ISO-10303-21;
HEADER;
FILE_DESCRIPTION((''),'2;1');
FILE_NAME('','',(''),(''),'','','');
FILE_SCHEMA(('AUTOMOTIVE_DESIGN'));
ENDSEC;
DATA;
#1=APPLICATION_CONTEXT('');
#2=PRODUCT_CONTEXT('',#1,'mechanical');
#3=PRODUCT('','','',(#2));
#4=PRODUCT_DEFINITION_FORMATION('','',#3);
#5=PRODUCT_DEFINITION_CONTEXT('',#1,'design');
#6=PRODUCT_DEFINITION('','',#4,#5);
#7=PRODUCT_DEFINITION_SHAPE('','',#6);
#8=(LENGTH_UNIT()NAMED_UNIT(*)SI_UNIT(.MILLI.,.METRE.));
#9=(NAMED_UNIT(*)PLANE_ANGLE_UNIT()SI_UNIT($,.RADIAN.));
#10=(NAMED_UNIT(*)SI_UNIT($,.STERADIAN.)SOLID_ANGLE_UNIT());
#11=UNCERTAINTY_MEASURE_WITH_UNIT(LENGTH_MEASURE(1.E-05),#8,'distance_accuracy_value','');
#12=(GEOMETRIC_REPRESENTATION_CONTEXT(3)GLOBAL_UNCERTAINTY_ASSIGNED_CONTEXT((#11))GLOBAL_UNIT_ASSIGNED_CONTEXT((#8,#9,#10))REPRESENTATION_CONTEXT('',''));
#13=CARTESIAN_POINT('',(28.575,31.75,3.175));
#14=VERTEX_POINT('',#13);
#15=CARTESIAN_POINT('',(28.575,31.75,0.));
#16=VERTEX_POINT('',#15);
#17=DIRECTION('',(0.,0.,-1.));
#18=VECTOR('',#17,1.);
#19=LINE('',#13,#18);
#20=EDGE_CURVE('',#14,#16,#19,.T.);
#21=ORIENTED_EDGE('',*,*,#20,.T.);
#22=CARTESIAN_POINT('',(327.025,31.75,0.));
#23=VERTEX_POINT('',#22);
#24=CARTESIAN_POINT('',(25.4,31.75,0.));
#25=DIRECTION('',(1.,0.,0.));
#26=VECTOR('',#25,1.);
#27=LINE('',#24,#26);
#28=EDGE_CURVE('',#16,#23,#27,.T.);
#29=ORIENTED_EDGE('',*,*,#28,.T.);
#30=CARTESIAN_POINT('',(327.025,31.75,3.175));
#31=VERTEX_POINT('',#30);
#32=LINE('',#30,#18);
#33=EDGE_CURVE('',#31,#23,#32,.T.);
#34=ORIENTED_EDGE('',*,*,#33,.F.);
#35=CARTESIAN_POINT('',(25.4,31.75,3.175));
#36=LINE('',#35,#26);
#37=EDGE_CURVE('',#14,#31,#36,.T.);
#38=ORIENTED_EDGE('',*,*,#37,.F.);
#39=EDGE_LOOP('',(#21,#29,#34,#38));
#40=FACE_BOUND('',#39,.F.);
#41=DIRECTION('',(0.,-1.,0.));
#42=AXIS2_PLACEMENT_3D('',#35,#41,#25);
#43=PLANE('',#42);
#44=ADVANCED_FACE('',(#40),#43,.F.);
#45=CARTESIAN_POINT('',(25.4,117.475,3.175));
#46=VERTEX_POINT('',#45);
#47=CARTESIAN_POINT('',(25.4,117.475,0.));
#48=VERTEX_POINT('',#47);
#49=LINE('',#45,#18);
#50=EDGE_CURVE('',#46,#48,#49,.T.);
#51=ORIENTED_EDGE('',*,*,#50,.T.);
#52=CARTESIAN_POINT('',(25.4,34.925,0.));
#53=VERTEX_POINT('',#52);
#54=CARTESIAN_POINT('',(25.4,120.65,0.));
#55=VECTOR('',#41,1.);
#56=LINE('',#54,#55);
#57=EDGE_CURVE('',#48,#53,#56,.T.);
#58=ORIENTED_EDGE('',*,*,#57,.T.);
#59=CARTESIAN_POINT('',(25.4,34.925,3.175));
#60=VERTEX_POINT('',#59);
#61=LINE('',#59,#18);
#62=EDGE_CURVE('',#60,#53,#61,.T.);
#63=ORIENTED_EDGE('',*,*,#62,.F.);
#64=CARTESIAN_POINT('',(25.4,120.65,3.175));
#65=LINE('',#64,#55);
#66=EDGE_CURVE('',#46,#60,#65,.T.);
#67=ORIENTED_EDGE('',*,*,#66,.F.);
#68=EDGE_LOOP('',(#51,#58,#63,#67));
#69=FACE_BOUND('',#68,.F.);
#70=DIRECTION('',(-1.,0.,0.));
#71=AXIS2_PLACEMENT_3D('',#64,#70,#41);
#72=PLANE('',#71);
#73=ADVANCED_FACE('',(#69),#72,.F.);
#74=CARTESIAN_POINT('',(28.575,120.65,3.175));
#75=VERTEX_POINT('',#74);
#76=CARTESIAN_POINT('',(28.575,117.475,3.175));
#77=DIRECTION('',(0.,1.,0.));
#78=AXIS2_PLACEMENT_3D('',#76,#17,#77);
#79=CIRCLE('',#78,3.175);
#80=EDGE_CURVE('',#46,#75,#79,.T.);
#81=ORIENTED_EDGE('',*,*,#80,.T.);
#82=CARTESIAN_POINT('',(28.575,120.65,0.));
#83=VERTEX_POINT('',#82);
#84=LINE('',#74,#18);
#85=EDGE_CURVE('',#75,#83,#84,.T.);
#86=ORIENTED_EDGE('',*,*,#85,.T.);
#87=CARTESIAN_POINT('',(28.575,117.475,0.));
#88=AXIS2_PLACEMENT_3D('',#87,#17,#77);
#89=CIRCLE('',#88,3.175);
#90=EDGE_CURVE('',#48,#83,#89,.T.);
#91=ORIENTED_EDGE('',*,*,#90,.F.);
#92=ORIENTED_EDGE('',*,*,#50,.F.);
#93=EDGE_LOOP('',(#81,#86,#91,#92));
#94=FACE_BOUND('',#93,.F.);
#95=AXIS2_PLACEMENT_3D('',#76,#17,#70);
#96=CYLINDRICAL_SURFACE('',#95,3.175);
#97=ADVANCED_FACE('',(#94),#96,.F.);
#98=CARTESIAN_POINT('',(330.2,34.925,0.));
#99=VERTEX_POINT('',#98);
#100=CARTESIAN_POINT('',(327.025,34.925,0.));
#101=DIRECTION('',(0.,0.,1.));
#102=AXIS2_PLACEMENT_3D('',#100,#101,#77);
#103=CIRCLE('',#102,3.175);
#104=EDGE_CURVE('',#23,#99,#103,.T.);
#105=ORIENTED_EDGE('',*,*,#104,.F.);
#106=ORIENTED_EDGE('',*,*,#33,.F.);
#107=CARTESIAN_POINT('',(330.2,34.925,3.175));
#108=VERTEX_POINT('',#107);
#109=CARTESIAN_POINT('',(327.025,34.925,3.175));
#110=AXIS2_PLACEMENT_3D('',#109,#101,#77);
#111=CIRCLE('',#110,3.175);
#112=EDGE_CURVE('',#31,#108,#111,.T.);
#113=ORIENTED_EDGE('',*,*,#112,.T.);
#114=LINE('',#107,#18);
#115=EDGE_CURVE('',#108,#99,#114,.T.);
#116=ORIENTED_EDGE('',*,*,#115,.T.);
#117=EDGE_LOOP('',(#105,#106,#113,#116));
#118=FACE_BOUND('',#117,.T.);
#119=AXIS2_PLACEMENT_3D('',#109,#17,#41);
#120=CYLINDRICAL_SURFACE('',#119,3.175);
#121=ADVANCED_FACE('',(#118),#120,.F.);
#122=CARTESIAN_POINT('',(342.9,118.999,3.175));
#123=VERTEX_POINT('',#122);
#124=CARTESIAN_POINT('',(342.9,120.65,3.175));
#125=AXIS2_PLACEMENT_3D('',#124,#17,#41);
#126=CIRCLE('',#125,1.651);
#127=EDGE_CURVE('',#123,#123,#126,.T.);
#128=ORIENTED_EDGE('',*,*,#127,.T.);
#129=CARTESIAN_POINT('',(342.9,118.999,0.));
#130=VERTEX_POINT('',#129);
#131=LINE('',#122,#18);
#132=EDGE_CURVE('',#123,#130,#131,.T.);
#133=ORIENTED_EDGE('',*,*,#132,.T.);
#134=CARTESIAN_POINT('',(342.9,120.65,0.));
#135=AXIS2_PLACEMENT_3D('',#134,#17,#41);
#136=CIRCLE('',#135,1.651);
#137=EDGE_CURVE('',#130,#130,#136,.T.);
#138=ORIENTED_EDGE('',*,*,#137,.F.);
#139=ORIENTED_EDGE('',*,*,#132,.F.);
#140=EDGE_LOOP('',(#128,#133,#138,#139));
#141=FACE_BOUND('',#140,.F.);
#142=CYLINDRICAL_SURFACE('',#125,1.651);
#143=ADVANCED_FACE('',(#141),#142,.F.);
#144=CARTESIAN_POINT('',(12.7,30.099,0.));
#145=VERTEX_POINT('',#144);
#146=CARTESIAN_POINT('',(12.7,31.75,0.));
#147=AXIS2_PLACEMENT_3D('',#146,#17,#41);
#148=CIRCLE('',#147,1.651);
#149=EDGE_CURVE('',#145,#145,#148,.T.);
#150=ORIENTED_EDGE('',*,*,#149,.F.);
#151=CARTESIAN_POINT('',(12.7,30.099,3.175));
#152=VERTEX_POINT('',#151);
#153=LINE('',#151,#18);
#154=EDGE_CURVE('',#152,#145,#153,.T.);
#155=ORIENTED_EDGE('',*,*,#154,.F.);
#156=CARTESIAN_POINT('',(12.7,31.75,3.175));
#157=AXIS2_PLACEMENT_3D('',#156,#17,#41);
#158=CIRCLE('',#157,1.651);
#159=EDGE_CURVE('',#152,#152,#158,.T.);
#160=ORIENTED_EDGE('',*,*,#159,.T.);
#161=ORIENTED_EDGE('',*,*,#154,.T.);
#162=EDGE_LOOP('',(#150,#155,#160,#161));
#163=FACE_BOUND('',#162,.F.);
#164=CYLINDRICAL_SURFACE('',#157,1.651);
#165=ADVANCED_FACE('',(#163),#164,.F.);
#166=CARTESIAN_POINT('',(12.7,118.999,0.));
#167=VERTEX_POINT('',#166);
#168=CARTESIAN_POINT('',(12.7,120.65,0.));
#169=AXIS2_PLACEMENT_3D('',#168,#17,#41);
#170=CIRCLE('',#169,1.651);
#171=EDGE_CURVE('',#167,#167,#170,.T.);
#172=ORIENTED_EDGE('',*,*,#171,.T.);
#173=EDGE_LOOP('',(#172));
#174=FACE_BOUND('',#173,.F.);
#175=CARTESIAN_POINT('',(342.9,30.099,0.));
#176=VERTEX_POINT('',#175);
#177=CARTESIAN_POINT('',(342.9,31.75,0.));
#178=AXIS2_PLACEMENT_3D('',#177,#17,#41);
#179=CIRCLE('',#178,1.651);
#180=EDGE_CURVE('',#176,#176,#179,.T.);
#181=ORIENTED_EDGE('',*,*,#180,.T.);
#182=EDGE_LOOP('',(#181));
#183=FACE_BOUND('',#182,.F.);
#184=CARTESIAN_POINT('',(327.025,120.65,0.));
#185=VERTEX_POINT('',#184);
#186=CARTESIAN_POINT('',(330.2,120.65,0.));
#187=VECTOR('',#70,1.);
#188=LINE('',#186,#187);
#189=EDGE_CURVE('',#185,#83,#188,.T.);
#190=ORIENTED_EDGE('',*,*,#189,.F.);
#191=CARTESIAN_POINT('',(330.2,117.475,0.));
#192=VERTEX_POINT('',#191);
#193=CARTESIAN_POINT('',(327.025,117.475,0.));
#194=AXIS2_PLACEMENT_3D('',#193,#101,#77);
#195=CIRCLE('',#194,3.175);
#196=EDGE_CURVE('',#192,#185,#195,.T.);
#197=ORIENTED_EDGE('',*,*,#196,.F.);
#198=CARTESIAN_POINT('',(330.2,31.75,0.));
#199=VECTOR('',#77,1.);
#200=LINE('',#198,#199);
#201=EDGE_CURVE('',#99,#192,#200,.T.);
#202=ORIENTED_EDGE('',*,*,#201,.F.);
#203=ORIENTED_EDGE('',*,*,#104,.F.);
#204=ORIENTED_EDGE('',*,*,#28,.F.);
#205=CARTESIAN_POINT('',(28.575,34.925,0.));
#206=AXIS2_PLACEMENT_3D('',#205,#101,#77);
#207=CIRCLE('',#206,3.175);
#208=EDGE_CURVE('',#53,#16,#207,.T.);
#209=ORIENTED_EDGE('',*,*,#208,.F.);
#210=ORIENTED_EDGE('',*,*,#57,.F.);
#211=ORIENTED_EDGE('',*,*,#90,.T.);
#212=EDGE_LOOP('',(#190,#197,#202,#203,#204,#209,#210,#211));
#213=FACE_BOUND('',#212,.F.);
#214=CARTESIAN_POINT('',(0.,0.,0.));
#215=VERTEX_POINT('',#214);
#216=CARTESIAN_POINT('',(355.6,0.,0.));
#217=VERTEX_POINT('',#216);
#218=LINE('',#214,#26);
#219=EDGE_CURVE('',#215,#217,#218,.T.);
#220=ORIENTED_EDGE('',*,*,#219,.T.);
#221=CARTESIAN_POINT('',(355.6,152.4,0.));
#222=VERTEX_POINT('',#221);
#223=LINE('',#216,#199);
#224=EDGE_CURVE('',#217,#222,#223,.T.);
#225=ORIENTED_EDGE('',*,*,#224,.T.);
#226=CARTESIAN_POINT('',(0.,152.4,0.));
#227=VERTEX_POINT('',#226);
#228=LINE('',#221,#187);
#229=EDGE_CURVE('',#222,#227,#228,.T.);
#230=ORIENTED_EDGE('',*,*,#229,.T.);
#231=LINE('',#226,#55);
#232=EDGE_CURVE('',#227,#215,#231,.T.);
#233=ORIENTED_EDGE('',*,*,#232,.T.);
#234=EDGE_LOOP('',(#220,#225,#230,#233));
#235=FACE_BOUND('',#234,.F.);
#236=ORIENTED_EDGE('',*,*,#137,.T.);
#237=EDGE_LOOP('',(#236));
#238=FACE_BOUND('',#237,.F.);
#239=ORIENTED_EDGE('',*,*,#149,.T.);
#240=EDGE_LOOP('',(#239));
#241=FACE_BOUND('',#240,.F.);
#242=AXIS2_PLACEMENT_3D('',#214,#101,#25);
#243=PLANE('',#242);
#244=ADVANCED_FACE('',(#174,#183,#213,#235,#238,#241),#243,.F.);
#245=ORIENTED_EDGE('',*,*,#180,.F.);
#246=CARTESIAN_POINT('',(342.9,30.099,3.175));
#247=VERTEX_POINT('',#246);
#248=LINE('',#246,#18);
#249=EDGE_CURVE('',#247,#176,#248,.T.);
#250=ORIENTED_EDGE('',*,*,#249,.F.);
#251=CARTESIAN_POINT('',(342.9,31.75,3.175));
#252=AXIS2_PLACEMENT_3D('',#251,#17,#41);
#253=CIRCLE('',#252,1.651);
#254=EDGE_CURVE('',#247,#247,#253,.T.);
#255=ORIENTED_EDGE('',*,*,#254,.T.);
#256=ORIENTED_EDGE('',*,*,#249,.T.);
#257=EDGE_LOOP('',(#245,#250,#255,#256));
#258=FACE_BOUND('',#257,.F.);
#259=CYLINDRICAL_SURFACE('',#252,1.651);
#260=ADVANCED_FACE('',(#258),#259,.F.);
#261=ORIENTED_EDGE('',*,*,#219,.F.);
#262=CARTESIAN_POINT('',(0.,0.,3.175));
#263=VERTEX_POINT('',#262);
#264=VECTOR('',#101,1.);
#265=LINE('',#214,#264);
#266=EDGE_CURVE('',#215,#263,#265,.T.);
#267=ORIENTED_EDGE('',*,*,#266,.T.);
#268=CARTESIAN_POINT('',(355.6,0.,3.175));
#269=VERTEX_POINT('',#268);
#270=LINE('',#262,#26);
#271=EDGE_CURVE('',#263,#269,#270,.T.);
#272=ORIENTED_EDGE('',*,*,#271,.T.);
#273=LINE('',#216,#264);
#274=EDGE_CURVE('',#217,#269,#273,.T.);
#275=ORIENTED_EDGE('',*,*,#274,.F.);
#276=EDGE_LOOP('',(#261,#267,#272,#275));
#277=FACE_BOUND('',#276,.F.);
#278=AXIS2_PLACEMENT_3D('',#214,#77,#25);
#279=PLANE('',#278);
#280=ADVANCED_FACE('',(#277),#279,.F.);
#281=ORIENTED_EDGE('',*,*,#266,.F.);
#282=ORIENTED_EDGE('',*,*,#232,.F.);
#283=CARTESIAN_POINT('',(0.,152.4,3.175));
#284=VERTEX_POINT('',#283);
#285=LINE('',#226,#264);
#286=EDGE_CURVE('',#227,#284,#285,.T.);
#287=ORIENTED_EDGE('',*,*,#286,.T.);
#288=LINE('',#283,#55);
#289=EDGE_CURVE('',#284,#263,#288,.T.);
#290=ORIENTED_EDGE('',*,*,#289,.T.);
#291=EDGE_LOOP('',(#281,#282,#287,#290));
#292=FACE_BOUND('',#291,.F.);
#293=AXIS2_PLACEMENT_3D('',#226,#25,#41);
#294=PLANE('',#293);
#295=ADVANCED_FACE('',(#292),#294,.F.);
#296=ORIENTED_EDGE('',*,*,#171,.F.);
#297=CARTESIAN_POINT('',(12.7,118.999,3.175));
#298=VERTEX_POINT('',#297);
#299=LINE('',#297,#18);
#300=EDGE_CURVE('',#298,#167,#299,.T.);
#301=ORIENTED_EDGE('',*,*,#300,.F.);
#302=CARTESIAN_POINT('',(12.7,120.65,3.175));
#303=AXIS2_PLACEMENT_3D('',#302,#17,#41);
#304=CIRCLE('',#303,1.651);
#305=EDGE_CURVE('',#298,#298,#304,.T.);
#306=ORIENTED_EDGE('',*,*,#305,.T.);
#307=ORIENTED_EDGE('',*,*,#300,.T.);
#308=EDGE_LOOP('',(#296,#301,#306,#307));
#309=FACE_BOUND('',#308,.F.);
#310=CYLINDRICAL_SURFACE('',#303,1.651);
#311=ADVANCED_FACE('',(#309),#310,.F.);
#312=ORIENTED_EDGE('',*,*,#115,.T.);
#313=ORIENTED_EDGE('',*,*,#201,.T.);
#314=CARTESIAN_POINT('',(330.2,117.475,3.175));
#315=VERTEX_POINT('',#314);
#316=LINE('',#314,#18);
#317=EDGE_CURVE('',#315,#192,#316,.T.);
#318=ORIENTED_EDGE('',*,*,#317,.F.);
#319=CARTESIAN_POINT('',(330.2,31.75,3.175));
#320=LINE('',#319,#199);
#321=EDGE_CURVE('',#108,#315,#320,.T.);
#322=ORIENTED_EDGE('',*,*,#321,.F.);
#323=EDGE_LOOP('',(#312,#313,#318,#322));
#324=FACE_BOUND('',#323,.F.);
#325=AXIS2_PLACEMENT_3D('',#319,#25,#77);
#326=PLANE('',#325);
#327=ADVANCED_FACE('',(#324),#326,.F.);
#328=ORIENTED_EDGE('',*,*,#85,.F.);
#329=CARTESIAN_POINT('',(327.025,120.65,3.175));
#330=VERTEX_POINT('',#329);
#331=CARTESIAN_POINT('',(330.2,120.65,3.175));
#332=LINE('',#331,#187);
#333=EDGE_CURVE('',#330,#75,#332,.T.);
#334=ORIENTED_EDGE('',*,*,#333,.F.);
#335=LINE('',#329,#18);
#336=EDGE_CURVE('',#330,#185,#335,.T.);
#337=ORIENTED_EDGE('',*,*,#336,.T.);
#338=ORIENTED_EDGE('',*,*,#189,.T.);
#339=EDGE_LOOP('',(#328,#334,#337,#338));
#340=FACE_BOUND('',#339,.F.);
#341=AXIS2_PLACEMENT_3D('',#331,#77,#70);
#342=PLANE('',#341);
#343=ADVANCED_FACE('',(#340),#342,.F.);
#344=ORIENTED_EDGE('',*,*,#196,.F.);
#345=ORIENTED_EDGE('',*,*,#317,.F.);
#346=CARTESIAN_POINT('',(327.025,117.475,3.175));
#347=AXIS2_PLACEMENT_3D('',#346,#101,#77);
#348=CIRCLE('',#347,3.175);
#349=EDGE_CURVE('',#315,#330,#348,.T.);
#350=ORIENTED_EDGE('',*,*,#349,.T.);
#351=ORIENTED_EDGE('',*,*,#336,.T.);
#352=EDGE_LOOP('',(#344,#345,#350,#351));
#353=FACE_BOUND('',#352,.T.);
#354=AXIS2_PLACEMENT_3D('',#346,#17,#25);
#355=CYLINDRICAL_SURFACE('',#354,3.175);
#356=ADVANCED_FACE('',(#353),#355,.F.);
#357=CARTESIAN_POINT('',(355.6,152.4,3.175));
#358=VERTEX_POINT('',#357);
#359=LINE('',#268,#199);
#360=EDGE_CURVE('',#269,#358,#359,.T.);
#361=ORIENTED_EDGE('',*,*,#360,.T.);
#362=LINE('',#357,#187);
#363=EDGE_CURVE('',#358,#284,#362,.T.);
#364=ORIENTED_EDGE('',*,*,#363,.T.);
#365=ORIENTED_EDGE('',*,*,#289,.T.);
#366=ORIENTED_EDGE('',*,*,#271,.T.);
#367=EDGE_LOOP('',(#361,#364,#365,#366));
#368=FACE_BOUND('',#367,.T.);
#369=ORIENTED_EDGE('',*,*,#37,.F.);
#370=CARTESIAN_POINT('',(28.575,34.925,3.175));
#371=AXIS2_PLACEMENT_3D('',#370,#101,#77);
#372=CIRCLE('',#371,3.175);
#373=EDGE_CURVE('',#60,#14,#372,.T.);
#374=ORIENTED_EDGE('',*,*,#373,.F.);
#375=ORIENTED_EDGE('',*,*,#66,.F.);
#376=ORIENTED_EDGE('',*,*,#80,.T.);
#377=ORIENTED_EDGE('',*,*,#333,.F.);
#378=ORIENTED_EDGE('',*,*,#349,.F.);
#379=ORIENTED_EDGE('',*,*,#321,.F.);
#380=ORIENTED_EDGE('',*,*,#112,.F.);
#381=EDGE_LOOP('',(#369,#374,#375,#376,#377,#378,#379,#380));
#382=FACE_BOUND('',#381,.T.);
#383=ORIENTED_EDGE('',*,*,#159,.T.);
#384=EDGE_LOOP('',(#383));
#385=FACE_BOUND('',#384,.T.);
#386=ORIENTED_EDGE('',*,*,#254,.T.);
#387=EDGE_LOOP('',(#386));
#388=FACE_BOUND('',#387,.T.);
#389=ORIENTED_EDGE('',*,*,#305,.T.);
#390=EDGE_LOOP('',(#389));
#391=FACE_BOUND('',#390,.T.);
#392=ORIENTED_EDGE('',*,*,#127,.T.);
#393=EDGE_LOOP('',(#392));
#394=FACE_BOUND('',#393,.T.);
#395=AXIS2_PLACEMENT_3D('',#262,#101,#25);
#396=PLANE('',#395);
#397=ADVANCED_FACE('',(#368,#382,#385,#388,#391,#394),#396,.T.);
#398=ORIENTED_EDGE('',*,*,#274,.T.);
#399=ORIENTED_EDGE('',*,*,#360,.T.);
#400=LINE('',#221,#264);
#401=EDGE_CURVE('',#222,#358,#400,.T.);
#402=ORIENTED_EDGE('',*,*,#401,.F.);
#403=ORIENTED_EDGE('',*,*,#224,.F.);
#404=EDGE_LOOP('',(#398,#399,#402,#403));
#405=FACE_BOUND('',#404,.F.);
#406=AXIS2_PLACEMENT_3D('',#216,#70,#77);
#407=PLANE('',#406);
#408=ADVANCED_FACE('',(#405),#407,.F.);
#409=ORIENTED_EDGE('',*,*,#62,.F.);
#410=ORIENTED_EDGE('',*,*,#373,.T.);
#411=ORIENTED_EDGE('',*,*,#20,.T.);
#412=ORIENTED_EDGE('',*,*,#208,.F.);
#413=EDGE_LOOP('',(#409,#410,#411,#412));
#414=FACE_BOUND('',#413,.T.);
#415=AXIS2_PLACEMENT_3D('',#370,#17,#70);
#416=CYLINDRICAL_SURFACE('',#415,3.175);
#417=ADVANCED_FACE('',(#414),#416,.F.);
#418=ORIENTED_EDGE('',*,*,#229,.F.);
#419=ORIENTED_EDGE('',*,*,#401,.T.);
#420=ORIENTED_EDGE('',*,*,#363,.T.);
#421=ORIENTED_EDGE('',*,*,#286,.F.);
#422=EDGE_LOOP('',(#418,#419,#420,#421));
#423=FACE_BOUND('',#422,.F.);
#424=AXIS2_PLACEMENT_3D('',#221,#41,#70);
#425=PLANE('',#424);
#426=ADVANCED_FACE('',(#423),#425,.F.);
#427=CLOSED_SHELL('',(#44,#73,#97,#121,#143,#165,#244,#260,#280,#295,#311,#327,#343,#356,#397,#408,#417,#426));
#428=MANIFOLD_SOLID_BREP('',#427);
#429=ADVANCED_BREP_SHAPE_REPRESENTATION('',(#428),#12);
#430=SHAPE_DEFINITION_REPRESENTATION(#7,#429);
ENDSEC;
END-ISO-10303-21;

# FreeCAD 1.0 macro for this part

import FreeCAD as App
import Part
import Sketcher
from FreeCAD import Vector
Q = App.Units.Quantity


def edges_at(feature, points):
    """Names of the edges that pass closest to the given points."""
    edges = feature.Shape.Edges
    near = lambda p: min(range(len(edges)), key=lambda i: edges[i].distToShape(Part.Vertex(*p))[0])
    return sorted({f"Edge{near(p) + 1}" for p in points})

doc = App.newDocument("Part")
body = doc.addObject("PartDesign::Body", "Body")

# Sketch on XY plane
sketch1 = body.newObject("Sketcher::SketchObject", "Sketch")
sketch1.AttachmentSupport = (doc.getObject("XY_Plane"), [""])
sketch1.MapMode = "FlatFace"
sketch1.addGeometry(Part.LineSegment(Vector(0, 152, 0), Vector(0, 0, 0)), False)
sketch1.addGeometry(Part.LineSegment(Vector(0, 0, 0), Vector(356, 0, 0)), False)
sketch1.addGeometry(Part.LineSegment(Vector(356, 0, 0), Vector(356, 152, 0)), False)
sketch1.addGeometry(Part.LineSegment(Vector(356, 152, 0), Vector(0, 152, 0)), False)
sketch1.addConstraint(Sketcher.Constraint("Coincident", 0, 2, 1, 1))
sketch1.addConstraint(Sketcher.Constraint("Coincident", 1, 2, 2, 1))
sketch1.addConstraint(Sketcher.Constraint("Coincident", 2, 2, 3, 1))
sketch1.addConstraint(Sketcher.Constraint("Coincident", 3, 2, 0, 1))
sketch1.addConstraint(Sketcher.Constraint("Vertical", 0))
sketch1.addConstraint(Sketcher.Constraint("Horizontal", 1))
sketch1.addConstraint(Sketcher.Constraint("Vertical", 2))
sketch1.addConstraint(Sketcher.Constraint("Horizontal", 3))
sketch1.addConstraint(Sketcher.Constraint("Coincident", 0, 2, -1, 1))
sketch1.addConstraint(Sketcher.Constraint("DistanceX", 1, 1, 1, 2, Q("14 in")))
sketch1.addConstraint(Sketcher.Constraint("DistanceY", 0, 2, 0, 1, Q("6 in")))
pad1 = body.newObject("PartDesign::Pad", "Pad")
pad1.Profile = sketch1
pad1.Length = Q("0.125 in")

# Sketch on XY plane
sketch2 = body.newObject("Sketcher::SketchObject", "Sketch001")
sketch2.AttachmentSupport = (doc.getObject("XY_Plane"), [""])
sketch2.MapMode = "FlatFace"
sketch2.AttachmentOffset = App.Placement(Vector(0, 0, 0.125 * 25.4), App.Rotation())
sketch2.addGeometry(Part.Circle(Vector(12.7, 31.8, 0), Vector(0, 0, 1), 1.7), False)
sketch2.addGeometry(Part.Circle(Vector(12.7, 120.7, 0), Vector(0, 0, 1), 1.7), False)
sketch2.addGeometry(Part.Circle(Vector(342.9, 120.7, 0), Vector(0, 0, 1), 1.7), False)
sketch2.addGeometry(Part.Circle(Vector(342.9, 31.8, 0), Vector(0, 0, 1), 1.7), False)
sketch2.addConstraint(Sketcher.Constraint("Equal", 0, 1))
sketch2.addConstraint(Sketcher.Constraint("Equal", 1, 2))
sketch2.addConstraint(Sketcher.Constraint("Equal", 2, 3))
sketch2.addConstraint(Sketcher.Constraint("Horizontal", 1, 3, 2, 3))
sketch2.addConstraint(Sketcher.Constraint("Horizontal", 0, 3, 3, 3))
sketch2.addConstraint(Sketcher.Constraint("Vertical", 0, 3, 1, 3))
sketch2.addConstraint(Sketcher.Constraint("Vertical", 2, 3, 3, 3))
sketch2.addConstraint(Sketcher.Constraint("Diameter", 0, Q("0.13 in")))
sketch2.addConstraint(Sketcher.Constraint("DistanceX", 1, 3, 2, 3, Q("13 in")))
sketch2.addConstraint(Sketcher.Constraint("DistanceX", -1, 1, 0, 3, Q("0.5 in")))
sketch2.addConstraint(Sketcher.Constraint("DistanceY", 0, 3, 1, 3, Q("3.5 in")))
sketch2.addConstraint(Sketcher.Constraint("DistanceY", -1, 1, 0, 3, Q("1.25 in")))
doc.recompute()
hole = body.newObject("PartDesign::Hole", "Hole")
hole.Profile = sketch2
hole.ThreadType = "None"
hole.Diameter = Q("0.13 in")
hole.DepthType = "ThroughAll"

# Sketch on XY plane
sketch3 = body.newObject("Sketcher::SketchObject", "Sketch002")
sketch3.AttachmentSupport = (doc.getObject("XY_Plane"), [""])
sketch3.MapMode = "FlatFace"
sketch3.AttachmentOffset = App.Placement(Vector(0, 0, 0.125 * 25.4), App.Rotation())
sketch3.addGeometry(Part.LineSegment(Vector(25, 121, 0), Vector(25, 32, 0)), False)
sketch3.addGeometry(Part.LineSegment(Vector(25, 32, 0), Vector(330, 32, 0)), False)
sketch3.addGeometry(Part.LineSegment(Vector(330, 32, 0), Vector(330, 121, 0)), False)
sketch3.addGeometry(Part.LineSegment(Vector(330, 121, 0), Vector(25, 121, 0)), False)
sketch3.addConstraint(Sketcher.Constraint("Coincident", 0, 2, 1, 1))
sketch3.addConstraint(Sketcher.Constraint("Coincident", 1, 2, 2, 1))
sketch3.addConstraint(Sketcher.Constraint("Coincident", 2, 2, 3, 1))
sketch3.addConstraint(Sketcher.Constraint("Coincident", 3, 2, 0, 1))
sketch3.addConstraint(Sketcher.Constraint("Vertical", 0))
sketch3.addConstraint(Sketcher.Constraint("Horizontal", 1))
sketch3.addConstraint(Sketcher.Constraint("Vertical", 2))
sketch3.addConstraint(Sketcher.Constraint("Horizontal", 3))
sketch3.addConstraint(Sketcher.Constraint("DistanceX", 1, 1, 1, 2, Q("12 in")))
sketch3.addConstraint(Sketcher.Constraint("DistanceY", 0, 2, 0, 1, Q("3.5 in")))
sketch3.addConstraint(Sketcher.Constraint("DistanceX", -1, 1, 0, 2, Q("1 in")))
sketch3.addConstraint(Sketcher.Constraint("DistanceY", -1, 1, 0, 2, Q("1.25 in")))
pocket1 = body.newObject("PartDesign::Pocket", "Pocket")
pocket1.Profile = sketch3
pocket1.Length = Q("0.125 in")
doc.recompute()

fillet = body.newObject("PartDesign::Fillet", "Fillet")
fillet.Base = (pocket1, edges_at(pocket1, [
    (25.4, 31.75, 1.587),
    (25.4, 120.65, 1.587),
    (330.2, 120.65, 1.587),
    (330.2, 31.75, 1.587),
]))
fillet.Radius = Q("0.125 in")

doc.recompute()
